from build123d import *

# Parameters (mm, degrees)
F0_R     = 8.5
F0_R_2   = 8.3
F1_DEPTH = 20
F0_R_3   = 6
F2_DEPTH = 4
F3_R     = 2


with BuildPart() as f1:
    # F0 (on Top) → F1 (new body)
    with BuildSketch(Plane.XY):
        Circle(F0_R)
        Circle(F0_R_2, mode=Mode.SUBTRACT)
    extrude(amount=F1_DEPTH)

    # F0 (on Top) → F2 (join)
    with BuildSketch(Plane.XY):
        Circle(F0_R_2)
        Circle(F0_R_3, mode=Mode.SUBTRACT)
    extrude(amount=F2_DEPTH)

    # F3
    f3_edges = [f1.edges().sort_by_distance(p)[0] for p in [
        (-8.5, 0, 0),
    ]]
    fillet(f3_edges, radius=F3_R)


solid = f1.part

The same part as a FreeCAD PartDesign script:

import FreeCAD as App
import Part
import Sketcher
from FreeCAD import Vector


def edges_at(feature, points):
    """Names of the edges that pass closest to the given points."""
    edges = feature.Shape.Edges
    near = lambda p: min(range(len(edges)), key=lambda i: edges[i].distToShape(Part.Vertex(*p))[0])
    return sorted({f"Edge{near(p) + 1}" for p in points})

doc = App.newDocument("Part")
body = doc.addObject("PartDesign::Body", "Body")

# Sketch on XY plane
sketch1 = body.newObject("Sketcher::SketchObject", "Sketch")
sketch1.AttachmentSupport = (doc.getObject("XY_Plane"), [""])
sketch1.MapMode = "FlatFace"
sketch1.addGeometry([
    Part.Circle(Vector(0, 0, 0), Vector(0, 0, 1), 8.5),
    Part.Circle(Vector(0, 0, 0), Vector(0, 0, 1), 8.3),
], False)
sketch1.addConstraint([
    Sketcher.Constraint("Coincident", 0, 3, -1, 1),
    Sketcher.Constraint("Coincident", 1, 3, -1, 1),
    Sketcher.Constraint("Diameter", 0, 17.0),
    Sketcher.Constraint("Diameter", 1, 16.6),
])
pad1 = body.newObject("PartDesign::Pad", "Pad")
pad1.Profile = sketch1
pad1.Length = 20

# Sketch on XY plane
sketch2 = body.newObject("Sketcher::SketchObject", "Sketch001")
sketch2.AttachmentSupport = (doc.getObject("XY_Plane"), [""])
sketch2.MapMode = "FlatFace"
sketch2.addGeometry([
    Part.Circle(Vector(0, 0, 0), Vector(0, 0, 1), 8.3),
    Part.Circle(Vector(0, 0, 0), Vector(0, 0, 1), 6),
], False)
sketch2.addConstraint([
    Sketcher.Constraint("Coincident", 0, 3, -1, 1),
    Sketcher.Constraint("Coincident", 1, 3, -1, 1),
    Sketcher.Constraint("Diameter", 1, 12.0),
    Sketcher.Constraint("Diameter", 0, 16.6),
])
pad2 = body.newObject("PartDesign::Pad", "Pad001")
pad2.Profile = sketch2
pad2.Length = 4
doc.recompute()

fillet = body.newObject("PartDesign::Fillet", "Fillet")
fillet.Base = (pad2, edges_at(pad2, [(-8.5, 0, 0)]))
fillet.Radius = 2

doc.recompute()
